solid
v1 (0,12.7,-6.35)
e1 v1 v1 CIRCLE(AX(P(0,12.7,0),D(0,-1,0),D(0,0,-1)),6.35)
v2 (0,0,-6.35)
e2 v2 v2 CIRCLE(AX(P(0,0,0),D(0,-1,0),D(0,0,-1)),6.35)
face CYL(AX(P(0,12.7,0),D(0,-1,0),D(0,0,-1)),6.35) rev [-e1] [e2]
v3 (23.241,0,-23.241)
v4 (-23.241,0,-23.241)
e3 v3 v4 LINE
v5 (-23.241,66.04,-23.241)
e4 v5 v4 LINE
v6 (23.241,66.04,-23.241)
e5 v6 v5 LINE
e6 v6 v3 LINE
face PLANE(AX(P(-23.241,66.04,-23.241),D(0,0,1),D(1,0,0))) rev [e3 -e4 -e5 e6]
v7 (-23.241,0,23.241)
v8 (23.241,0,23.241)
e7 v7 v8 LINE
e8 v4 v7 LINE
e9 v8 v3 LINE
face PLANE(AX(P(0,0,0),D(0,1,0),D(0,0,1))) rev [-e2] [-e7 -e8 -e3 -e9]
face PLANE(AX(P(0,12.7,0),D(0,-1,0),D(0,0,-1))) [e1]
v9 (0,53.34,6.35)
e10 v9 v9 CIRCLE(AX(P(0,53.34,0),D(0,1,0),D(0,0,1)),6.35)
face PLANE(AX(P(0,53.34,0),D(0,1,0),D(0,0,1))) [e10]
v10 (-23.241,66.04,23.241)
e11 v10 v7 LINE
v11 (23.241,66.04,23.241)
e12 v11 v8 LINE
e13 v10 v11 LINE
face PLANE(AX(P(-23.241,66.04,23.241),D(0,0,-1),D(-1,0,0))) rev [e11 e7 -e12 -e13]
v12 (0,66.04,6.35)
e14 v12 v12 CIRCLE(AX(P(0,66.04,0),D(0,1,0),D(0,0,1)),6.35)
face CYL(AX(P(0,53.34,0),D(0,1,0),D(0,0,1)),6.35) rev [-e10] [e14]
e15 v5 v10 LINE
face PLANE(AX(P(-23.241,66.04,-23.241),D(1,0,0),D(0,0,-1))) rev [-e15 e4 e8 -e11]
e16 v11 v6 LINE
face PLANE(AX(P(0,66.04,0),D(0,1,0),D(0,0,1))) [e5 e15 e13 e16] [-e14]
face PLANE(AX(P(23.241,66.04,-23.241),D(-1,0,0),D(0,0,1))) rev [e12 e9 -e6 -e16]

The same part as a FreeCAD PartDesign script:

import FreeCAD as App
import Part
import Sketcher

V = App.Vector
Q = App.Units.Quantity

doc = App.newDocument("Part")
body = doc.addObject("PartDesign::Body", "Body")

# Sketch on XZ plane
sketch1 = body.newObject("Sketcher::SketchObject", "Sketch")
sketch1.AttachmentSupport = (doc.getObject("XZ_Plane"), [""])
sketch1.MapMode = "FlatFace"
sketch1.addGeometry([
    Part.LineSegment(V(-23, -23, 0), V(-23, 23, 0)),
    Part.LineSegment(V(-23, 23, 0), V(23, 23, 0)),
    Part.LineSegment(V(23, 23, 0), V(23, -23, 0)),
    Part.LineSegment(V(23, -23, 0), V(-23, -23, 0)),
], False)
sketch1.addConstraint([
    Sketcher.Constraint("Coincident", 0, 2, 1, 1),
    Sketcher.Constraint("Coincident", 1, 2, 2, 1),
    Sketcher.Constraint("Coincident", 2, 2, 3, 1),
    Sketcher.Constraint("Coincident", 3, 2, 0, 1),
    Sketcher.Constraint("Vertical", 0),
    Sketcher.Constraint("Horizontal", 1),
    Sketcher.Constraint("Vertical", 2),
    Sketcher.Constraint("Horizontal", 3),
    Sketcher.Constraint("Symmetric", 0, 2, 2, 2, -1, 1),
    Sketcher.Constraint("Equal", 3, 0),
    Sketcher.Constraint("DistanceX", 1, 1, 1, 2, Q("1.83 in")),
])
pad1 = body.newObject("PartDesign::Pad", "Pad")
pad1.Profile = sketch1
pad1.Length = Q("2.6 in")
pad1.Reversed = True

# Sketch on XZ plane
sketch2 = body.newObject("Sketcher::SketchObject", "Sketch001")
sketch2.AttachmentSupport = (doc.getObject("XZ_Plane"), [""])
sketch2.MapMode = "FlatFace"
sketch2.AttachmentOffset = App.Placement(V(0, 0, -2.6 * 25.4), App.Rotation())
sketch2.addGeometry(Part.Circle(V(0, 0, 0), V(0, 0, 1), 6), False)
sketch2.addConstraint([
    Sketcher.Constraint("Coincident", 0, 3, -1, 1),
    Sketcher.Constraint("Diameter", 0, Q("0.5 in")),
])
pocket1 = body.newObject("PartDesign::Pocket", "Pocket")
pocket1.Profile = sketch2
pocket1.Length = Q("0.5 in")
pocket1.Reversed = True

# Sketch on XZ plane
sketch3 = body.newObject("Sketcher::SketchObject", "Sketch002")
sketch3.AttachmentSupport = (doc.getObject("XZ_Plane"), [""])
sketch3.MapMode = "FlatFace"
sketch3.addGeometry(Part.Circle(V(0, 0, 0), V(0, 0, 1), 6), False)
sketch3.addConstraint([
    Sketcher.Constraint("Coincident", 0, 3, -1, 1),
    Sketcher.Constraint("Diameter", 0, Q("0.5 in")),
])
pocket2 = body.newObject("PartDesign::Pocket", "Pocket001")
pocket2.Profile = sketch3
pocket2.Length = Q("0.5 in")

doc.recompute()
